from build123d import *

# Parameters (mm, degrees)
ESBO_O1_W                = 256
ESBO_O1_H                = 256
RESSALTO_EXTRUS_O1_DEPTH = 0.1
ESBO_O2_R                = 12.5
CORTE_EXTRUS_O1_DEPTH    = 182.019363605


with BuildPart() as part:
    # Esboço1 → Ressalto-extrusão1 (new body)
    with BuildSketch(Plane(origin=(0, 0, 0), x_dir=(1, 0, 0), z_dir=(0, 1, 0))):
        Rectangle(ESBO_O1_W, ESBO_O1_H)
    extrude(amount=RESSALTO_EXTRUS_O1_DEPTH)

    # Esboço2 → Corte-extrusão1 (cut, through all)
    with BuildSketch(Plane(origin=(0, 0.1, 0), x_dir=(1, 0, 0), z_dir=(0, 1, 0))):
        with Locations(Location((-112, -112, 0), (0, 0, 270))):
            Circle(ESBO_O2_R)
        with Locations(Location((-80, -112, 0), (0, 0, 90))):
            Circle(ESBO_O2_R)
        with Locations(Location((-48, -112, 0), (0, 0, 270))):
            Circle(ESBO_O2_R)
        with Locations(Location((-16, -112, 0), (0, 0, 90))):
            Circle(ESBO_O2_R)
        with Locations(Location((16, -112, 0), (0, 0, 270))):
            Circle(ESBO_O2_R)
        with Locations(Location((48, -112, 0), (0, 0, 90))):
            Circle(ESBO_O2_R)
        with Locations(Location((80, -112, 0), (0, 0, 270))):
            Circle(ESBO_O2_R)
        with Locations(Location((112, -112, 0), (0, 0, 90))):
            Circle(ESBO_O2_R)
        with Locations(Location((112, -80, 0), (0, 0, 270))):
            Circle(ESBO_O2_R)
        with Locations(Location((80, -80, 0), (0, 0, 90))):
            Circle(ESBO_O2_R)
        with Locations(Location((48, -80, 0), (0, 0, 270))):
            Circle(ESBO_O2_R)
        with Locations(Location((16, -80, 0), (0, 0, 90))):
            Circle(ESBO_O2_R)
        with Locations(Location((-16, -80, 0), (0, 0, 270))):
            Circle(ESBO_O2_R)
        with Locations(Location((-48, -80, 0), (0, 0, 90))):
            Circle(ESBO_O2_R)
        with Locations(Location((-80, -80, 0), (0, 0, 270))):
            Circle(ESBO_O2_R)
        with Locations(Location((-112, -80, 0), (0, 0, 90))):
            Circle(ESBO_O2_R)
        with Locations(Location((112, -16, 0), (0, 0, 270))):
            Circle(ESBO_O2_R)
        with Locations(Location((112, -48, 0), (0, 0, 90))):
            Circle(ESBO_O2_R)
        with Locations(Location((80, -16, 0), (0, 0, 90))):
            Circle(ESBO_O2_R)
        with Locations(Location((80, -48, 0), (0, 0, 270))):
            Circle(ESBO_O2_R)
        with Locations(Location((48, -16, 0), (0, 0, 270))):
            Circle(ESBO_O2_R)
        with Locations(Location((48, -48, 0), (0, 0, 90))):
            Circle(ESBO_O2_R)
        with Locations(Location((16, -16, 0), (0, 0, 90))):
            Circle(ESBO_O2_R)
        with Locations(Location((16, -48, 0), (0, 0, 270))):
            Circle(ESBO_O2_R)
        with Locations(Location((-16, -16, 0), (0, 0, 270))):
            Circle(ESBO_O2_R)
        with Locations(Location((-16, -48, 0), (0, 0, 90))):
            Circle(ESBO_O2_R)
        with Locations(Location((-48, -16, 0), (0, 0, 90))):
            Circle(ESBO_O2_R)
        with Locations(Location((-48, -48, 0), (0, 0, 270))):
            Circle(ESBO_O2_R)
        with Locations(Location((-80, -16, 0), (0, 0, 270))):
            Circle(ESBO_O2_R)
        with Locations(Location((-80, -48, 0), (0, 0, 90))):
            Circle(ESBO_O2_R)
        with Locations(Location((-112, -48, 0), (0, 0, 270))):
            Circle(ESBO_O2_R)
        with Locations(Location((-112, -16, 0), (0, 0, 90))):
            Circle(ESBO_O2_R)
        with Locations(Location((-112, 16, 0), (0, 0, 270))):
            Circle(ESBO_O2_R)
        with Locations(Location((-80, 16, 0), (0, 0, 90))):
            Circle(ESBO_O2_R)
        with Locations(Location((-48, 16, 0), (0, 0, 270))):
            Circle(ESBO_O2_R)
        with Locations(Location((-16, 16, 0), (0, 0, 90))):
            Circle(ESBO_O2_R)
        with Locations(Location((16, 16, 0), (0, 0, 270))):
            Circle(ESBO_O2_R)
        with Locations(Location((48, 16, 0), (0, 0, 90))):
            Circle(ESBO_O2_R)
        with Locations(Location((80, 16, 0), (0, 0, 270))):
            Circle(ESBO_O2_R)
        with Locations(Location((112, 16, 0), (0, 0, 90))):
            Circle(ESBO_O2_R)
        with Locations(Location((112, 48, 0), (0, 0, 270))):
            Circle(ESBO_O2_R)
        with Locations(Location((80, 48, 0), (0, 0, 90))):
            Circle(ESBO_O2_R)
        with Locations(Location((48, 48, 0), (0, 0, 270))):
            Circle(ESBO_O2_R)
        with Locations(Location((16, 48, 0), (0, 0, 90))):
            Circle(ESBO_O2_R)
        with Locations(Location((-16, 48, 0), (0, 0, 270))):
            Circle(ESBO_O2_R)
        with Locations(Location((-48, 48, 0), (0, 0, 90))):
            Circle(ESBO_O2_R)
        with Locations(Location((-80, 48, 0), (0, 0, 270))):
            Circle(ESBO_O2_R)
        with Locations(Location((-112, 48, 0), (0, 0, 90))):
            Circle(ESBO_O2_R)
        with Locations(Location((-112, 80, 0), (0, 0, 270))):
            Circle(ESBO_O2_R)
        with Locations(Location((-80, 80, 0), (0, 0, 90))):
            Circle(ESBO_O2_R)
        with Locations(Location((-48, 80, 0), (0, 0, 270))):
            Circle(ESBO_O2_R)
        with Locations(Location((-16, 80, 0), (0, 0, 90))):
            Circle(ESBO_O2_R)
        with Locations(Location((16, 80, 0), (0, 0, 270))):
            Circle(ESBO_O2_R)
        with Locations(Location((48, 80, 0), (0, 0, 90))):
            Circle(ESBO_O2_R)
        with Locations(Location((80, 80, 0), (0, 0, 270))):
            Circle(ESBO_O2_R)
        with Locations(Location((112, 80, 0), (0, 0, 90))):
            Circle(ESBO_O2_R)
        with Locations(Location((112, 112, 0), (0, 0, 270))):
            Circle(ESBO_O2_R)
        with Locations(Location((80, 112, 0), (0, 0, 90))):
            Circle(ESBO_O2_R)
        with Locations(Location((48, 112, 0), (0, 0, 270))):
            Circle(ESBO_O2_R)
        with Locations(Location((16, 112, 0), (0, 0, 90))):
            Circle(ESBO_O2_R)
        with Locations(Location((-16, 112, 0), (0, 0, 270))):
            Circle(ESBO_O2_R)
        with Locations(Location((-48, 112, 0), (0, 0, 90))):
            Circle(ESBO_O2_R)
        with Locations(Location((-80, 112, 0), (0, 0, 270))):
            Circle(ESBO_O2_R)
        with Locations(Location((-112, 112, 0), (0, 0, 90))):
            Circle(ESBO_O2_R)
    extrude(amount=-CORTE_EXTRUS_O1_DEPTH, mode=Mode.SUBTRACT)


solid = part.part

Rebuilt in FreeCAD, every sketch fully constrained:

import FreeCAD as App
import Part
import Sketcher


def add_polygon(sketch, points):
    """Adds a closed chain of lines whose ends are joined by coincident constraints."""
    first, n = sketch.GeometryCount, len(points)
    for a, b in zip(points, points[1:] + points[:1]):
        sketch.addGeometry(Part.LineSegment(App.Vector(*a, 0), App.Vector(*b, 0)), False)
    for i in range(n):
        sketch.addConstraint(Sketcher.Constraint("Coincident", first + i, 2, first + (i + 1) % n, 1))

doc = App.newDocument("Part")
body = doc.addObject("PartDesign::Body", "Body")

# Sketch on XZ plane
sketch1 = body.newObject("Sketcher::SketchObject", "Sketch")
sketch1.AttachmentSupport = (doc.getObject("XZ_Plane"), [""])
sketch1.MapMode = "FlatFace"
add_polygon(sketch1, [(-128, -128), (-128, 128), (128, 128), (128, -128)])  # lines 0-3
sketch1.addConstraint(Sketcher.Constraint("Vertical", 0))
sketch1.addConstraint(Sketcher.Constraint("Horizontal", 1))
sketch1.addConstraint(Sketcher.Constraint("Vertical", 2))
sketch1.addConstraint(Sketcher.Constraint("Horizontal", 3))
sketch1.addConstraint(Sketcher.Constraint("Symmetric", 0, 2, 2, 2, -1, 1))
sketch1.addConstraint(Sketcher.Constraint("Equal", 3, 0))
sketch1.addConstraint(Sketcher.Constraint("DistanceX", 1, 1, 1, 2, 256.0))
pad1 = body.newObject("PartDesign::Pad", "Pad")
pad1.Profile = sketch1
pad1.Length = 0.1
pad1.Reversed = True

# Sketch on XZ plane
sketch2 = body.newObject("Sketcher::SketchObject", "Sketch001")
sketch2.AttachmentSupport = (doc.getObject("XZ_Plane"), [""])
sketch2.MapMode = "FlatFace"
sketch2.AttachmentOffset = App.Placement(App.Vector(0, 0, -0.1), App.Rotation())
sketch2.addGeometry(Part.Circle(App.Vector(-112, 112, 0), App.Vector(0, 0, 1), 12.5), False)
sketch2.addGeometry(Part.Circle(App.Vector(-80, 112, 0), App.Vector(0, 0, 1), 12.5), False)
sketch2.addGeometry(Part.Circle(App.Vector(-48, 112, 0), App.Vector(0, 0, 1), 12.5), False)
sketch2.addGeometry(Part.Circle(App.Vector(-16, 112, 0), App.Vector(0, 0, 1), 12.5), False)
sketch2.addGeometry(Part.Circle(App.Vector(16, 112, 0), App.Vector(0, 0, 1), 12.5), False)
sketch2.addGeometry(Part.Circle(App.Vector(48, 112, 0), App.Vector(0, 0, 1), 12.5), False)
sketch2.addGeometry(Part.Circle(App.Vector(80, 112, 0), App.Vector(0, 0, 1), 12.5), False)
sketch2.addGeometry(Part.Circle(App.Vector(112, 112, 0), App.Vector(0, 0, 1), 12.5), False)
sketch2.addGeometry(Part.Circle(App.Vector(112, 80, 0), App.Vector(0, 0, 1), 12.5), False)
sketch2.addGeometry(Part.Circle(App.Vector(80, 80, 0), App.Vector(0, 0, 1), 12.5), False)
sketch2.addGeometry(Part.Circle(App.Vector(48, 80, 0), App.Vector(0, 0, 1), 12.5), False)
sketch2.addGeometry(Part.Circle(App.Vector(16, 80, 0), App.Vector(0, 0, 1), 12.5), False)
sketch2.addGeometry(Part.Circle(App.Vector(-16, 80, 0), App.Vector(0, 0, 1), 12.5), False)
sketch2.addGeometry(Part.Circle(App.Vector(-48, 80, 0), App.Vector(0, 0, 1), 12.5), False)
sketch2.addGeometry(Part.Circle(App.Vector(-80, 80, 0), App.Vector(0, 0, 1), 12.5), False)
sketch2.addGeometry(Part.Circle(App.Vector(-112, 80, 0), App.Vector(0, 0, 1), 12.5), False)
sketch2.addGeometry(Part.Circle(App.Vector(112, 16, 0), App.Vector(0, 0, 1), 12.5), False)
sketch2.addGeometry(Part.Circle(App.Vector(112, 48, 0), App.Vector(0, 0, 1), 12.5), False)
sketch2.addGeometry(Part.Circle(App.Vector(80, 16, 0), App.Vector(0, 0, 1), 12.5), False)
sketch2.addGeometry(Part.Circle(App.Vector(80, 48, 0), App.Vector(0, 0, 1), 12.5), False)
sketch2.addGeometry(Part.Circle(App.Vector(48, 16, 0), App.Vector(0, 0, 1), 12.5), False)
sketch2.addGeometry(Part.Circle(App.Vector(48, 48, 0), App.Vector(0, 0, 1), 12.5), False)
sketch2.addGeometry(Part.Circle(App.Vector(16, 16, 0), App.Vector(0, 0, 1), 12.5), False)
sketch2.addGeometry(Part.Circle(App.Vector(16, 48, 0), App.Vector(0, 0, 1), 12.5), False)
sketch2.addGeometry(Part.Circle(App.Vector(-16, 16, 0), App.Vector(0, 0, 1), 12.5), False)
sketch2.addGeometry(Part.Circle(App.Vector(-16, 48, 0), App.Vector(0, 0, 1), 12.5), False)
sketch2.addGeometry(Part.Circle(App.Vector(-48, 16, 0), App.Vector(0, 0, 1), 12.5), False)
sketch2.addGeometry(Part.Circle(App.Vector(-48, 48, 0), App.Vector(0, 0, 1), 12.5), False)
sketch2.addGeometry(Part.Circle(App.Vector(-80, 16, 0), App.Vector(0, 0, 1), 12.5), False)
sketch2.addGeometry(Part.Circle(App.Vector(-80, 48, 0), App.Vector(0, 0, 1), 12.5), False)
sketch2.addGeometry(Part.Circle(App.Vector(-112, 48, 0), App.Vector(0, 0, 1), 12.5), False)
sketch2.addGeometry(Part.Circle(App.Vector(-112, 16, 0), App.Vector(0, 0, 1), 12.5), False)
sketch2.addGeometry(Part.Circle(App.Vector(-112, -16, 0), App.Vector(0, 0, 1), 12.5), False)
sketch2.addGeometry(Part.Circle(App.Vector(-80, -16, 0), App.Vector(0, 0, 1), 12.5), False)
sketch2.addGeometry(Part.Circle(App.Vector(-48, -16, 0), App.Vector(0, 0, 1), 12.5), False)
sketch2.addGeometry(Part.Circle(App.Vector(-16, -16, 0), App.Vector(0, 0, 1), 12.5), False)
sketch2.addGeometry(Part.Circle(App.Vector(16, -16, 0), App.Vector(0, 0, 1), 12.5), False)
sketch2.addGeometry(Part.Circle(App.Vector(48, -16, 0), App.Vector(0, 0, 1), 12.5), False)
sketch2.addGeometry(Part.Circle(App.Vector(80, -16, 0), App.Vector(0, 0, 1), 12.5), False)
sketch2.addGeometry(Part.Circle(App.Vector(112, -16, 0), App.Vector(0, 0, 1), 12.5), False)
sketch2.addGeometry(Part.Circle(App.Vector(112, -48, 0), App.Vector(0, 0, 1), 12.5), False)
sketch2.addGeometry(Part.Circle(App.Vector(80, -48, 0), App.Vector(0, 0, 1), 12.5), False)
sketch2.addGeometry(Part.Circle(App.Vector(48, -48, 0), App.Vector(0, 0, 1), 12.5), False)
sketch2.addGeometry(Part.Circle(App.Vector(16, -48, 0), App.Vector(0, 0, 1), 12.5), False)
sketch2.addGeometry(Part.Circle(App.Vector(-16, -48, 0), App.Vector(0, 0, 1), 12.5), False)
sketch2.addGeometry(Part.Circle(App.Vector(-48, -48, 0), App.Vector(0, 0, 1), 12.5), False)
sketch2.addGeometry(Part.Circle(App.Vector(-80, -48, 0), App.Vector(0, 0, 1), 12.5), False)
sketch2.addGeometry(Part.Circle(App.Vector(-112, -48, 0), App.Vector(0, 0, 1), 12.5), False)
sketch2.addGeometry(Part.Circle(App.Vector(-112, -80, 0), App.Vector(0, 0, 1), 12.5), False)
sketch2.addGeometry(Part.Circle(App.Vector(-80, -80, 0), App.Vector(0, 0, 1), 12.5), False)
sketch2.addGeometry(Part.Circle(App.Vector(-48, -80, 0), App.Vector(0, 0, 1), 12.5), False)
sketch2.addGeometry(Part.Circle(App.Vector(-16, -80, 0), App.Vector(0, 0, 1), 12.5), False)
sketch2.addGeometry(Part.Circle(App.Vector(16, -80, 0), App.Vector(0, 0, 1), 12.5), False)
sketch2.addGeometry(Part.Circle(App.Vector(48, -80, 0), App.Vector(0, 0, 1), 12.5), False)
sketch2.addGeometry(Part.Circle(App.Vector(80, -80, 0), App.Vector(0, 0, 1), 12.5), False)
sketch2.addGeometry(Part.Circle(App.Vector(112, -80, 0), App.Vector(0, 0, 1), 12.5), False)
sketch2.addGeometry(Part.Circle(App.Vector(112, -112, 0), App.Vector(0, 0, 1), 12.5), False)
sketch2.addGeometry(Part.Circle(App.Vector(80, -112, 0), App.Vector(0, 0, 1), 12.5), False)
sketch2.addGeometry(Part.Circle(App.Vector(48, -112, 0), App.Vector(0, 0, 1), 12.5), False)
sketch2.addGeometry(Part.Circle(App.Vector(16, -112, 0), App.Vector(0, 0, 1), 12.5), False)
sketch2.addGeometry(Part.Circle(App.Vector(-16, -112, 0), App.Vector(0, 0, 1), 12.5), False)
sketch2.addGeometry(Part.Circle(App.Vector(-48, -112, 0), App.Vector(0, 0, 1), 12.5), False)
sketch2.addGeometry(Part.Circle(App.Vector(-80, -112, 0), App.Vector(0, 0, 1), 12.5), False)
sketch2.addGeometry(Part.Circle(App.Vector(-112, -112, 0), App.Vector(0, 0, 1), 12.5), False)
sketch2.addConstraint(Sketcher.Constraint("Equal", 0, 1))
sketch2.addConstraint(Sketcher.Constraint("Equal", 1, 2))
sketch2.addConstraint(Sketcher.Constraint("Equal", 2, 3))
sketch2.addConstraint(Sketcher.Constraint("Equal", 3, 4))
sketch2.addConstraint(Sketcher.Constraint("Equal", 4, 5))
sketch2.addConstraint(Sketcher.Constraint("Equal", 5, 6))
sketch2.addConstraint(Sketcher.Constraint("Equal", 6, 7))
sketch2.addConstraint(Sketcher.Constraint("Equal", 7, 8))
sketch2.addConstraint(Sketcher.Constraint("Equal", 8, 9))
sketch2.addConstraint(Sketcher.Constraint("Equal", 9, 10))
sketch2.addConstraint(Sketcher.Constraint("Equal", 10, 11))
sketch2.addConstraint(Sketcher.Constraint("Equal", 11, 12))
sketch2.addConstraint(Sketcher.Constraint("Equal", 12, 13))
sketch2.addConstraint(Sketcher.Constraint("Equal", 13, 14))
sketch2.addConstraint(Sketcher.Constraint("Equal", 14, 15))
sketch2.addConstraint(Sketcher.Constraint("Equal", 15, 16))
sketch2.addConstraint(Sketcher.Constraint("Equal", 16, 17))
sketch2.addConstraint(Sketcher.Constraint("Equal", 17, 18))
sketch2.addConstraint(Sketcher.Constraint("Equal", 18, 19))
sketch2.addConstraint(Sketcher.Constraint("Equal", 19, 20))
sketch2.addConstraint(Sketcher.Constraint("Equal", 20, 21))
sketch2.addConstraint(Sketcher.Constraint("Equal", 21, 22))
sketch2.addConstraint(Sketcher.Constraint("Equal", 22, 23))
sketch2.addConstraint(Sketcher.Constraint("Equal", 23, 24))
sketch2.addConstraint(Sketcher.Constraint("Equal", 24, 25))
sketch2.addConstraint(Sketcher.Constraint("Equal", 25, 26))
sketch2.addConstraint(Sketcher.Constraint("Equal", 26, 27))
sketch2.addConstraint(Sketcher.Constraint("Equal", 27, 28))
sketch2.addConstraint(Sketcher.Constraint("Equal", 28, 29))
sketch2.addConstraint(Sketcher.Constraint("Equal", 29, 30))
sketch2.addConstraint(Sketcher.Constraint("Equal", 30, 31))
sketch2.addConstraint(Sketcher.Constraint("Equal", 31, 32))
sketch2.addConstraint(Sketcher.Constraint("Equal", 32, 33))
sketch2.addConstraint(Sketcher.Constraint("Equal", 33, 34))
sketch2.addConstraint(Sketcher.Constraint("Equal", 34, 35))
sketch2.addConstraint(Sketcher.Constraint("Equal", 35, 36))
sketch2.addConstraint(Sketcher.Constraint("Equal", 36, 37))
sketch2.addConstraint(Sketcher.Constraint("Equal", 37, 38))
sketch2.addConstraint(Sketcher.Constraint("Equal", 38, 39))
sketch2.addConstraint(Sketcher.Constraint("Equal", 39, 40))
sketch2.addConstraint(Sketcher.Constraint("Equal", 40, 41))
sketch2.addConstraint(Sketcher.Constraint("Equal", 41, 42))
sketch2.addConstraint(Sketcher.Constraint("Equal", 42, 43))
sketch2.addConstraint(Sketcher.Constraint("Equal", 43, 44))
sketch2.addConstraint(Sketcher.Constraint("Equal", 44, 45))
sketch2.addConstraint(Sketcher.Constraint("Equal", 45, 46))
sketch2.addConstraint(Sketcher.Constraint("Equal", 46, 47))
sketch2.addConstraint(Sketcher.Constraint("Equal", 47, 48))
sketch2.addConstraint(Sketcher.Constraint("Equal", 48, 49))
sketch2.addConstraint(Sketcher.Constraint("Equal", 49, 50))
sketch2.addConstraint(Sketcher.Constraint("Equal", 50, 51))
sketch2.addConstraint(Sketcher.Constraint("Equal", 51, 52))
sketch2.addConstraint(Sketcher.Constraint("Equal", 52, 53))
sketch2.addConstraint(Sketcher.Constraint("Equal", 53, 54))
sketch2.addConstraint(Sketcher.Constraint("Equal", 54, 55))
sketch2.addConstraint(Sketcher.Constraint("Equal", 55, 56))
sketch2.addConstraint(Sketcher.Constraint("Equal", 56, 57))
sketch2.addConstraint(Sketcher.Constraint("Equal", 57, 58))
sketch2.addConstraint(Sketcher.Constraint("Equal", 58, 59))
sketch2.addConstraint(Sketcher.Constraint("Equal", 59, 60))
sketch2.addConstraint(Sketcher.Constraint("Equal", 60, 61))
sketch2.addConstraint(Sketcher.Constraint("Equal", 61, 62))
sketch2.addConstraint(Sketcher.Constraint("Equal", 62, 63))
sketch2.addConstraint(Sketcher.Constraint("Symmetric", 16, 3, 32, 3, -1, 1))
sketch2.addConstraint(Sketcher.Constraint("Symmetric", 18, 3, 33, 3, -1, 1))
sketch2.addConstraint(Sketcher.Constraint("Symmetric", 20, 3, 34, 3, -1, 1))
sketch2.addConstraint(Sketcher.Constraint("Symmetric", 22, 3, 35, 3, -1, 1))
sketch2.addConstraint(Sketcher.Constraint("Symmetric", 24, 3, 36, 3, -1, 1))
sketch2.addConstraint(Sketcher.Constraint("Symmetric", 26, 3, 37, 3, -1, 1))
sketch2.addConstraint(Sketcher.Constraint("Symmetric", 28, 3, 38, 3, -1, 1))
sketch2.addConstraint(Sketcher.Constraint("Symmetric", 31, 3, 39, 3, -1, 1))
sketch2.addConstraint(Sketcher.Constraint("Symmetric", 30, 3, 40, 3, -1, 1))
sketch2.addConstraint(Sketcher.Constraint("Symmetric", 29, 3, 41, 3, -1, 1))
sketch2.addConstraint(Sketcher.Constraint("Symmetric", 27, 3, 42, 3, -1, 1))
sketch2.addConstraint(Sketcher.Constraint("Symmetric", 25, 3, 43, 3, -1, 1))
sketch2.addConstraint(Sketcher.Constraint("Symmetric", 23, 3, 44, 3, -1, 1))
sketch2.addConstraint(Sketcher.Constraint("Symmetric", 21, 3, 45, 3, -1, 1))
sketch2.addConstraint(Sketcher.Constraint("Symmetric", 19, 3, 46, 3, -1, 1))
sketch2.addConstraint(Sketcher.Constraint("Symmetric", 17, 3, 47, 3, -1, 1))
sketch2.addConstraint(Sketcher.Constraint("Symmetric", 8, 3, 48, 3, -1, 1))
sketch2.addConstraint(Sketcher.Constraint("Symmetric", 9, 3, 49, 3, -1, 1))
sketch2.addConstraint(Sketcher.Constraint("Symmetric", 10, 3, 50, 3, -1, 1))
sketch2.addConstraint(Sketcher.Constraint("Symmetric", 11, 3, 51, 3, -1, 1))
sketch2.addConstraint(Sketcher.Constraint("Symmetric", 12, 3, 52, 3, -1, 1))
sketch2.addConstraint(Sketcher.Constraint("Symmetric", 13, 3, 53, 3, -1, 1))
sketch2.addConstraint(Sketcher.Constraint("Symmetric", 14, 3, 54, 3, -1, 1))
sketch2.addConstraint(Sketcher.Constraint("Symmetric", 15, 3, 55, 3, -1, 1))
sketch2.addConstraint(Sketcher.Constraint("Symmetric", 0, 3, 56, 3, -1, 1))
sketch2.addConstraint(Sketcher.Constraint("Symmetric", 1, 3, 57, 3, -1, 1))
sketch2.addConstraint(Sketcher.Constraint("Symmetric", 2, 3, 58, 3, -1, 1))
sketch2.addConstraint(Sketcher.Constraint("Symmetric", 3, 3, 59, 3, -1, 1))
sketch2.addConstraint(Sketcher.Constraint("Symmetric", 4, 3, 60, 3, -1, 1))
sketch2.addConstraint(Sketcher.Constraint("Symmetric", 5, 3, 61, 3, -1, 1))
sketch2.addConstraint(Sketcher.Constraint("Symmetric", 6, 3, 62, 3, -1, 1))
sketch2.addConstraint(Sketcher.Constraint("Symmetric", 7, 3, 63, 3, -1, 1))
sketch2.addConstraint(Sketcher.Constraint("Symmetric", 3, 3, 4, 3, -2))
sketch2.addConstraint(Sketcher.Constraint("Symmetric", 2, 3, 5, 3, -2))
sketch2.addConstraint(Sketcher.Constraint("Symmetric", 1, 3, 6, 3, -2))
sketch2.addConstraint(Sketcher.Constraint("Symmetric", 0, 3, 7, 3, -2))
sketch2.addConstraint(Sketcher.Constraint("Symmetric", 11, 3, 12, 3, -2))
sketch2.addConstraint(Sketcher.Constraint("Symmetric", 10, 3, 13, 3, -2))
sketch2.addConstraint(Sketcher.Constraint("Symmetric", 9, 3, 14, 3, -2))
sketch2.addConstraint(Sketcher.Constraint("Symmetric", 8, 3, 15, 3, -2))
sketch2.addConstraint(Sketcher.Constraint("Symmetric", 22, 3, 24, 3, -2))
sketch2.addConstraint(Sketcher.Constraint("Symmetric", 23, 3, 25, 3, -2))
sketch2.addConstraint(Sketcher.Constraint("Symmetric", 20, 3, 26, 3, -2))
sketch2.addConstraint(Sketcher.Constraint("Symmetric", 21, 3, 27, 3, -2))
sketch2.addConstraint(Sketcher.Constraint("Symmetric", 18, 3, 28, 3, -2))
sketch2.addConstraint(Sketcher.Constraint("Symmetric", 19, 3, 29, 3, -2))
sketch2.addConstraint(Sketcher.Constraint("Symmetric", 17, 3, 30, 3, -2))
sketch2.addConstraint(Sketcher.Constraint("Symmetric", 16, 3, 31, 3, -2))
sketch2.addConstraint(Sketcher.Constraint("Horizontal", 0, 3, 1, 3))
sketch2.addConstraint(Sketcher.Constraint("Horizontal", 1, 3, 2, 3))
sketch2.addConstraint(Sketcher.Constraint("Horizontal", 2, 3, 3, 3))
sketch2.addConstraint(Sketcher.Constraint("Horizontal", 8, 3, 9, 3))
sketch2.addConstraint(Sketcher.Constraint("Horizontal", 9, 3, 10, 3))
sketch2.addConstraint(Sketcher.Constraint("Horizontal", 10, 3, 11, 3))
sketch2.addConstraint(Sketcher.Constraint("Horizontal", 16, 3, 18, 3))
sketch2.addConstraint(Sketcher.Constraint("Horizontal", 17, 3, 19, 3))
sketch2.addConstraint(Sketcher.Constraint("Horizontal", 18, 3, 20, 3))
sketch2.addConstraint(Sketcher.Constraint("Horizontal", 19, 3, 21, 3))
sketch2.addConstraint(Sketcher.Constraint("Horizontal", 20, 3, 22, 3))
sketch2.addConstraint(Sketcher.Constraint("Horizontal", 21, 3, 23, 3))
sketch2.addConstraint(Sketcher.Constraint("Vertical", 7, 3, 8, 3))
sketch2.addConstraint(Sketcher.Constraint("Vertical", 6, 3, 9, 3))
sketch2.addConstraint(Sketcher.Constraint("Vertical", 5, 3, 10, 3))
sketch2.addConstraint(Sketcher.Constraint("Vertical", 4, 3, 11, 3))
sketch2.addConstraint(Sketcher.Constraint("Vertical", 8, 3, 16, 3))
sketch2.addConstraint(Sketcher.Constraint("Vertical", 16, 3, 17, 3))
sketch2.addConstraint(Sketcher.Constraint("Vertical", 9, 3, 18, 3))
sketch2.addConstraint(Sketcher.Constraint("Vertical", 18, 3, 19, 3))
sketch2.addConstraint(Sketcher.Constraint("Vertical", 10, 3, 20, 3))
sketch2.addConstraint(Sketcher.Constraint("Vertical", 20, 3, 21, 3))
sketch2.addConstraint(Sketcher.Constraint("Vertical", 11, 3, 22, 3))
sketch2.addConstraint(Sketcher.Constraint("Vertical", 22, 3, 23, 3))
sketch2.addConstraint(Sketcher.Constraint("Diameter", 0, 25.0))
sketch2.addConstraint(Sketcher.Constraint("DistanceX", 0, 3, -1, 1, 112.0))
sketch2.addConstraint(Sketcher.Constraint("DistanceY", -1, 1, 0, 3, 112.0))
sketch2.addConstraint(Sketcher.Constraint("DistanceX", 1, 3, -1, 1, 80.0))
sketch2.addConstraint(Sketcher.Constraint("DistanceX", 2, 3, -1, 1, 48.0))
sketch2.addConstraint(Sketcher.Constraint("DistanceX", 3, 3, -1, 1, 16.0))
sketch2.addConstraint(Sketcher.Constraint("DistanceY", -1, 1, 8, 3, 80.0))
sketch2.addConstraint(Sketcher.Constraint("DistanceY", -1, 1, 16, 3, 16.0))
sketch2.addConstraint(Sketcher.Constraint("DistanceY", -1, 1, 17, 3, 48.0))
pocket1 = body.newObject("PartDesign::Pocket", "Pocket")
pocket1.Profile = sketch2
pocket1.Type = "ThroughAll"
pocket1.Reversed = True

doc.recompute()
